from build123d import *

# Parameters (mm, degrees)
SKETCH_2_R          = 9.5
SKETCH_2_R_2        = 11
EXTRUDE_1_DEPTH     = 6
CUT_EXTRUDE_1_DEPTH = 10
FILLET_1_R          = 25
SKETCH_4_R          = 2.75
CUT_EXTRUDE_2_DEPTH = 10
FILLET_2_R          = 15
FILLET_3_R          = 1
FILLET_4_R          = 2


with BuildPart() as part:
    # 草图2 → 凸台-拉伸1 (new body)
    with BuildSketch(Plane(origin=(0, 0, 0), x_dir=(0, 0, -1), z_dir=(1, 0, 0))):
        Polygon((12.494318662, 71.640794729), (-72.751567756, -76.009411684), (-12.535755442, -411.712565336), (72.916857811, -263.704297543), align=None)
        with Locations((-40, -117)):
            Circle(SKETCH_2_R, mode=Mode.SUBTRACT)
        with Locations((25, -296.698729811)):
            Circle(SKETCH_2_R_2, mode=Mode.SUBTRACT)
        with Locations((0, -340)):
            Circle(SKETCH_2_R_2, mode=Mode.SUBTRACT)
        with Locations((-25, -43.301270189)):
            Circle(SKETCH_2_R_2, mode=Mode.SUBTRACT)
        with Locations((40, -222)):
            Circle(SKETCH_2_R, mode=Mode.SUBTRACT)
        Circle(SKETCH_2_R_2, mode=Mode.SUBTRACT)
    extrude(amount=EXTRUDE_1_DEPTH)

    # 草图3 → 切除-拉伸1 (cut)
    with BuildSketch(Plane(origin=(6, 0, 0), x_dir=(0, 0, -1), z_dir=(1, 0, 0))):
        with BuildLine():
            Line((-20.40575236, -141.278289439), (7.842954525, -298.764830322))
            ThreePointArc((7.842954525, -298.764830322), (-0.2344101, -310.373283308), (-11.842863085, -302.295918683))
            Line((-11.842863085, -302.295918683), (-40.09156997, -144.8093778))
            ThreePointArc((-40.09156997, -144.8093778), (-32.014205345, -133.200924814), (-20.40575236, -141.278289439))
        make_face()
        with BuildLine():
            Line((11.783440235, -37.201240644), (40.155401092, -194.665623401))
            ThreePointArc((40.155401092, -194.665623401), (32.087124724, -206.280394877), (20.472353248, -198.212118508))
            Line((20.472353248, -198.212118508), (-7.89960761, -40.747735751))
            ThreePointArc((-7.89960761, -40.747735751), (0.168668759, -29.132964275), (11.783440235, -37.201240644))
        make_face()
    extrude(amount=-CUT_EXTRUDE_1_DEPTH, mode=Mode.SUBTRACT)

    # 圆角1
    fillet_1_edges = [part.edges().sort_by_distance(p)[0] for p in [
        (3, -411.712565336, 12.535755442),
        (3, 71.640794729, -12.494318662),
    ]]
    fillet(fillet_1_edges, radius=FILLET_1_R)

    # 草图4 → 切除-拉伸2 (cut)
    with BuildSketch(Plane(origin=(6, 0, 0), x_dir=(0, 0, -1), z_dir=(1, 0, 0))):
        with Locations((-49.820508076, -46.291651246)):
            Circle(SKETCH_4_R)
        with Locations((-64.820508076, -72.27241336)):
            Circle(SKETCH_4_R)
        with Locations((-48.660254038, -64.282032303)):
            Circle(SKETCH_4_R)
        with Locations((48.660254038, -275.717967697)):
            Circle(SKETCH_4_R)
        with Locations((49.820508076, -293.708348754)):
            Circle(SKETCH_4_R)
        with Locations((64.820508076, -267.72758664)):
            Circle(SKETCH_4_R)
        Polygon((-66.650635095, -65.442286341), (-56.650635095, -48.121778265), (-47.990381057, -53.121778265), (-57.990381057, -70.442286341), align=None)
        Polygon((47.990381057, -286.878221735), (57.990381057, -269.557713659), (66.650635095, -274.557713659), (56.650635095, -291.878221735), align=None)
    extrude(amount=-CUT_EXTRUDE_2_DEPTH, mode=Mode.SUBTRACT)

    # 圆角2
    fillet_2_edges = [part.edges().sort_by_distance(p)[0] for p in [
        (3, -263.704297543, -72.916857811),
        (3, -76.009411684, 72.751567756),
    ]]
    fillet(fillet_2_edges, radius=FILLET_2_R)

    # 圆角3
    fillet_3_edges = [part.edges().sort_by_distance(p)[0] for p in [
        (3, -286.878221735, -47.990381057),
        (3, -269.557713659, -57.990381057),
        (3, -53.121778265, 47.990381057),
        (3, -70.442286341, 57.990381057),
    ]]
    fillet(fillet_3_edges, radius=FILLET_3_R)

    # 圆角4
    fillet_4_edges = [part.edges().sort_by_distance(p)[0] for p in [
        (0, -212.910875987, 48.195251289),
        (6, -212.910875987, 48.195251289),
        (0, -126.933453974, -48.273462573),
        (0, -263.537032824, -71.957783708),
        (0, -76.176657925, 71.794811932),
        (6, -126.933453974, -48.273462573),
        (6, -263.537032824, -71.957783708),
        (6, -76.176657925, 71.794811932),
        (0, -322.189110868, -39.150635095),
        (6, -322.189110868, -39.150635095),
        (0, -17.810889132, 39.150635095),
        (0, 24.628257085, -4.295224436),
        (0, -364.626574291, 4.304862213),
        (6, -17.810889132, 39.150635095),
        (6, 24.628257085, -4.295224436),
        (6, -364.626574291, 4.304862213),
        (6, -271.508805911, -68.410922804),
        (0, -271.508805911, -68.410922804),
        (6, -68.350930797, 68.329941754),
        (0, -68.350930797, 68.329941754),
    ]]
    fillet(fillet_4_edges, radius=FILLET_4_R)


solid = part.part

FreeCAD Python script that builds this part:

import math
import FreeCAD as App
import Part
import Sketcher
from FreeCAD import Vector
Q = App.Units.Quantity


def edges_at(feature, points):
    """Names of the edges that pass closest to the given points."""
    edges = feature.Shape.Edges
    near = lambda p: min(range(len(edges)), key=lambda i: edges[i].distToShape(Part.Vertex(*p))[0])
    return sorted({f"Edge{near(p) + 1}" for p in points})

doc = App.newDocument("Part")
body = doc.addObject("PartDesign::Body", "Body")

# Sketch on YZ plane
sketch1 = doc.addObject("Sketcher::SketchObject", "Sketch")
body.addObject(sketch1)
sketch1.AttachmentSupport = (doc.YZ_Plane, [""])
sketch1.MapMode = "FlatFace"
sketch1.addGeometry(Part.LineSegment(Vector(72, -12, 0), Vector(-76, 73, 0)), False)
sketch1.addGeometry(Part.LineSegment(Vector(-76, 73, 0), Vector(-412, 13, 0)), False)
sketch1.addGeometry(Part.LineSegment(Vector(-412, 13, 0), Vector(-264, -73, 0)), False)
sketch1.addGeometry(Part.LineSegment(Vector(-264, -73, 0), Vector(72, -12, 0)), False)
sketch1.addGeometry(Part.Circle(Vector(-340, 0, 0), Vector(0, 0, 1), 11), False)
sketch1.addGeometry(Part.Circle(Vector(-297, -25, 0), Vector(0, 0, 1), 11), False)
sketch1.addGeometry(Part.Circle(Vector(-222, -40, 0), Vector(0, 0, 1), 10), False)
sketch1.addGeometry(Part.Circle(Vector(-117, 40, 0), Vector(0, 0, 1), 10), False)
sketch1.addGeometry(Part.Circle(Vector(-43, 25, 0), Vector(0, 0, 1), 11), False)
sketch1.addGeometry(Part.Circle(Vector(0, 0, 0), Vector(0, 0, 1), 11), False)
sketch1.addConstraint(Sketcher.Constraint("Coincident", 0, 2, 1, 1))
sketch1.addConstraint(Sketcher.Constraint("Coincident", 1, 2, 2, 1))
sketch1.addConstraint(Sketcher.Constraint("Coincident", 2, 2, 3, 1))
sketch1.addConstraint(Sketcher.Constraint("Coincident", 3, 2, 0, 1))
sketch1.addConstraint(Sketcher.Constraint("Coincident", 9, 3, -1, 1))
sketch1.addConstraint(Sketcher.Constraint("Equal", 4, 5))
sketch1.addConstraint(Sketcher.Constraint("Equal", 6, 7))
sketch1.addConstraint(Sketcher.Constraint("Equal", 5, 8))
sketch1.addConstraint(Sketcher.Constraint("Equal", 8, 9))
sketch1.addConstraint(Sketcher.Constraint("PointOnObject", 4, 3, -1))
sketch1.addConstraint(Sketcher.Constraint("Parallel", 0, 2))
sketch1.addConstraint(Sketcher.Constraint("Diameter", 4, Q("22 mm")))
sketch1.addConstraint(Sketcher.Constraint("Diameter", 6, Q("19 mm")))
sketch1.addConstraint(Sketcher.Constraint("Angle", 0, Q("150 deg")))
sketch1.addConstraint(Sketcher.Constraint("DistanceX", 4, 3, -1, 1, Q("340 mm")))
sketch1.addConstraint(Sketcher.Constraint("DistanceY", 5, 3, -1, 1, Q("25 mm")))
sketch1.addConstraint(Sketcher.Constraint("DistanceX", 6, 3, -1, 1, Q("222 mm")))
sketch1.addConstraint(Sketcher.Constraint("DistanceY", 6, 3, -1, 1, Q("40 mm")))
sketch1.addConstraint(Sketcher.Constraint("DistanceX", 7, 3, -1, 1, Q("117 mm")))
sketch1.addConstraint(Sketcher.Constraint("DistanceY", -1, 1, 7, 3, Q("40 mm")))
sketch1.addConstraint(Sketcher.Constraint("DistanceY", -1, 1, 8, 3, Q("25 mm")))
sketch1.addConstraint(Sketcher.Constraint("Distance", 1, Q("341.06092 mm")))
sketch1.addConstraint(Sketcher.Constraint("DistanceX", 5, 3, -1, 1, Q("296.69873 mm")))
sketch1.addConstraint(Sketcher.Constraint("DistanceX", 8, 3, -1, 1, Q("43.30127 mm")))
sketch1.addConstraint(Sketcher.Constraint("DistanceX", 0, 2, -1, 1, Q("76.009412 mm")))
sketch1.addConstraint(Sketcher.Constraint("DistanceY", 3, 2, -1, 1, Q("12.494319 mm")))
sketch1.addConstraint(Sketcher.Constraint("Distance", 0, Q("170.491773 mm")))
sketch1.addConstraint(Sketcher.Constraint("Distance", 2, Q("170.905227 mm")))
sketch1.addConstraint(Sketcher.Constraint("DistanceX", 1, 2, -1, 1, Q("411.712565 mm")))
pad1 = doc.addObject("PartDesign::Pad", "Pad")
body.addObject(pad1)
pad1.Profile = sketch1
pad1.Length = 6

# Sketch on YZ plane
sketch2 = doc.addObject("Sketcher::SketchObject", "Sketch001")
body.addObject(sketch2)
sketch2.AttachmentSupport = (doc.YZ_Plane, [""])
sketch2.MapMode = "FlatFace"
sketch2.AttachmentOffset = App.Placement(Vector(0, 0, 6), App.Rotation())
sketch2.addGeometry(Part.LineSegment(Vector(-299, -8, 0), Vector(-141, 20, 0)), False)
sketch2.addGeometry(Part.ArcOfCircle(Part.Circle(Vector(-143, 30, 0), Vector(0, 0, 1), 10), math.radians(-80), math.radians(100)), False)
sketch2.addGeometry(Part.LineSegment(Vector(-145, 40, 0), Vector(-302, 12, 0)), False)
sketch2.addGeometry(Part.ArcOfCircle(Part.Circle(Vector(-301, 2, 0), Vector(0, 0, 1), 10), math.radians(100), math.radians(280)), False)
sketch2.addGeometry(Part.LineSegment(Vector(-195, -40, 0), Vector(-37, -12, 0)), False)
sketch2.addGeometry(Part.ArcOfCircle(Part.Circle(Vector(-39, -2, 0), Vector(0, 0, 1), 10), math.radians(-80), math.radians(100)), False)
sketch2.addGeometry(Part.LineSegment(Vector(-41, 8, 0), Vector(-198, -20, 0)), False)
sketch2.addGeometry(Part.ArcOfCircle(Part.Circle(Vector(-196, -30, 0), Vector(0, 0, 1), 10), math.radians(100), math.radians(280)), False)
sketch2.addConstraint(Sketcher.Constraint("Tangent", 0, 2, 1, 1))
sketch2.addConstraint(Sketcher.Constraint("Tangent", 1, 2, 2, 1))
sketch2.addConstraint(Sketcher.Constraint("Tangent", 2, 2, 3, 1))
sketch2.addConstraint(Sketcher.Constraint("Tangent", 3, 2, 0, 1))
sketch2.addConstraint(Sketcher.Constraint("Tangent", 4, 2, 5, 1))
sketch2.addConstraint(Sketcher.Constraint("Tangent", 5, 2, 6, 1))
sketch2.addConstraint(Sketcher.Constraint("Tangent", 6, 2, 7, 1))
sketch2.addConstraint(Sketcher.Constraint("Tangent", 7, 2, 4, 1))
sketch2.addConstraint(Sketcher.Constraint("Equal", 1, 3))
sketch2.addConstraint(Sketcher.Constraint("Equal", 3, 5))
sketch2.addConstraint(Sketcher.Constraint("Equal", 5, 7))
sketch2.addConstraint(Sketcher.Constraint("Equal", 2, 4))
sketch2.addConstraint(Sketcher.Constraint("Radius", 1, Q("10 mm")))
sketch2.addConstraint(Sketcher.Constraint("Distance", 0, Q("160 mm")))
sketch2.addConstraint(Sketcher.Constraint("DistanceY", 7, 2, -1, 1, Q("40.155401 mm")))
sketch2.addConstraint(Sketcher.Constraint("DistanceX", 0, 2, 5, 3, Q("102.303801 mm")))
sketch2.addConstraint(Sketcher.Constraint("DistanceY", 3, 3, 0, 2, Q("18.405798 mm")))
sketch2.addConstraint(Sketcher.Constraint("DistanceY", 4, 2, 1, 3, Q("42.032101 mm")))
sketch2.addConstraint(Sketcher.Constraint("DistanceY", 6, 2, 3, 2, Q("12.629399 mm")))
sketch2.addConstraint(Sketcher.Constraint("DistanceX", 5, 3, -1, 1, Q("38.974488 mm")))
pocket1 = doc.addObject("PartDesign::Pocket", "Pocket")
body.addObject(pocket1)
pocket1.Profile = sketch2
pocket1.Length = 10
doc.recompute()

fillet = doc.addObject("PartDesign::Fillet", "Fillet")
body.addObject(fillet)
fillet.Base = (pocket1, edges_at(pocket1, [(3, -411.713, 12.536), (3, 71.641, -12.494)]))
fillet.Radius = 25

# Sketch on YZ plane
sketch3 = doc.addObject("Sketcher::SketchObject", "Sketch002")
body.addObject(sketch3)
sketch3.AttachmentSupport = (doc.YZ_Plane, [""])
sketch3.MapMode = "FlatFace"
sketch3.AttachmentOffset = App.Placement(Vector(0, 0, 6), App.Rotation())
sketch3.addGeometry(Part.Circle(Vector(-46.3, 49.8, 0), Vector(0, 0, 1), 2.8), False)
sketch3.addGeometry(Part.Circle(Vector(-72.3, 64.8, 0), Vector(0, 0, 1), 2.8), False)
sketch3.addGeometry(Part.Circle(Vector(-64.3, 48.7, 0), Vector(0, 0, 1), 2.8), False)
sketch3.addGeometry(Part.Circle(Vector(-275.7, -48.7, 0), Vector(0, 0, 1), 2.8), False)
sketch3.addGeometry(Part.Circle(Vector(-293.7, -49.8, 0), Vector(0, 0, 1), 2.8), False)
sketch3.addGeometry(Part.Circle(Vector(-267.7, -64.8, 0), Vector(0, 0, 1), 2.8), False)
sketch3.addGeometry(Part.LineSegment(Vector(-48.1, 56.7, 0), Vector(-65.4, 66.7, 0)), False)
sketch3.addGeometry(Part.LineSegment(Vector(-65.4, 66.7, 0), Vector(-70.4, 58, 0)), False)
sketch3.addGeometry(Part.LineSegment(Vector(-70.4, 58, 0), Vector(-53.1, 48, 0)), False)
sketch3.addGeometry(Part.LineSegment(Vector(-53.1, 48, 0), Vector(-48.1, 56.7, 0)), False)
sketch3.addGeometry(Part.LineSegment(Vector(-269.6, -58, 0), Vector(-286.9, -48, 0)), False)
sketch3.addGeometry(Part.LineSegment(Vector(-286.9, -48, 0), Vector(-291.9, -56.7, 0)), False)
sketch3.addGeometry(Part.LineSegment(Vector(-291.9, -56.7, 0), Vector(-274.6, -66.7, 0)), False)
sketch3.addGeometry(Part.LineSegment(Vector(-274.6, -66.7, 0), Vector(-269.6, -58, 0)), False)
sketch3.addConstraint(Sketcher.Constraint("Coincident", 6, 2, 7, 1))
sketch3.addConstraint(Sketcher.Constraint("Coincident", 7, 2, 8, 1))
sketch3.addConstraint(Sketcher.Constraint("Coincident", 8, 2, 9, 1))
sketch3.addConstraint(Sketcher.Constraint("Coincident", 9, 2, 6, 1))
sketch3.addConstraint(Sketcher.Constraint("Coincident", 10, 2, 11, 1))
sketch3.addConstraint(Sketcher.Constraint("Coincident", 11, 2, 12, 1))
sketch3.addConstraint(Sketcher.Constraint("Coincident", 12, 2, 13, 1))
sketch3.addConstraint(Sketcher.Constraint("Coincident", 13, 2, 10, 1))
sketch3.addConstraint(Sketcher.Constraint("Equal", 0, 1))
sketch3.addConstraint(Sketcher.Constraint("Equal", 1, 2))
sketch3.addConstraint(Sketcher.Constraint("Equal", 2, 3))
sketch3.addConstraint(Sketcher.Constraint("Equal", 3, 4))
sketch3.addConstraint(Sketcher.Constraint("Equal", 4, 5))
sketch3.addConstraint(Sketcher.Constraint("Perpendicular", 6, 7))
sketch3.addConstraint(Sketcher.Constraint("Perpendicular", 7, 8))
sketch3.addConstraint(Sketcher.Constraint("Perpendicular", 8, 9))
sketch3.addConstraint(Sketcher.Constraint("Perpendicular", 9, 10))
sketch3.addConstraint(Sketcher.Constraint("Perpendicular", 10, 11))
sketch3.addConstraint(Sketcher.Constraint("Perpendicular", 11, 12))
sketch3.addConstraint(Sketcher.Constraint("Perpendicular", 12, 13))
sketch3.addConstraint(Sketcher.Constraint("Equal", 8, 10))
sketch3.addConstraint(Sketcher.Constraint("Equal", 9, 11))
sketch3.addConstraint(Sketcher.Constraint("Diameter", 0, Q("5.5 mm")))
sketch3.addConstraint(Sketcher.Constraint("Angle", 6, Q("150 deg")))
sketch3.addConstraint(Sketcher.Constraint("Distance", 6, Q("20 mm")))
sketch3.addConstraint(Sketcher.Constraint("Distance", 7, Q("10 mm")))
sketch3.addConstraint(Sketcher.Constraint("DistanceY", 0, 3, 1, 3, Q("15 mm")))
sketch3.addConstraint(Sketcher.Constraint("DistanceY", 5, 3, 4, 3, Q("15 mm")))
sketch3.addConstraint(Sketcher.Constraint("DistanceX", 5, 3, 6, 2, Q("202.2853 mm")))
sketch3.addConstraint(Sketcher.Constraint("DistanceX", 0, 3, -1, 1, Q("46.291651 mm")))
sketch3.addConstraint(Sketcher.Constraint("DistanceY", -1, 1, 0, 3, Q("49.820508 mm")))
sketch3.addConstraint(Sketcher.Constraint("DistanceX", 4, 3, -1, 1, Q("293.708349 mm")))
sketch3.addConstraint(Sketcher.Constraint("DistanceY", 4, 3, -1, 1, Q("49.820508 mm")))
sketch3.addConstraint(Sketcher.Constraint("DistanceY", -1, 1, 7, 2, Q("57.990381 mm")))
sketch3.addConstraint(Sketcher.Constraint("DistanceX", 8, 2, -1, 1, Q("53.121778 mm")))
sketch3.addConstraint(Sketcher.Constraint("DistanceX", 10, 2, -1, 1, Q("286.878222 mm")))
sketch3.addConstraint(Sketcher.Constraint("DistanceY", 10, 2, -1, 1, Q("47.990381 mm")))
sketch3.addConstraint(Sketcher.Constraint("DistanceX", 2, 3, 0, 3, Q("17.990381 mm")))
sketch3.addConstraint(Sketcher.Constraint("DistanceX", 1, 3, 2, 3, Q("7.990381 mm")))
sketch3.addConstraint(Sketcher.Constraint("DistanceY", 3, 3, 2, 3, Q("97.320508 mm")))
sketch3.addConstraint(Sketcher.Constraint("DistanceX", 4, 3, 3, 3, Q("17.990381 mm")))
sketch3.addConstraint(Sketcher.Constraint("DistanceY", 2, 3, 6, 2, Q("17.990381 mm")))
pocket2 = doc.addObject("PartDesign::Pocket", "Pocket001")
body.addObject(pocket2)
pocket2.Profile = sketch3
pocket2.Length = 10
doc.recompute()

fillet2 = doc.addObject("PartDesign::Fillet", "Fillet001")
body.addObject(fillet2)
fillet2.Base = (pocket2, edges_at(pocket2, [(3, -263.704, -72.917), (3, -76.009, 72.752)]))
fillet2.Radius = 15
doc.recompute()

fillet3 = doc.addObject("PartDesign::Fillet", "Fillet002")
body.addObject(fillet3)
fillet3.Base = (fillet2, edges_at(fillet2, [
    (3, -286.878, -47.99),
    (3, -269.558, -57.99),
    (3, -53.122, 47.99),
    (3, -70.442, 57.99),
]))
fillet3.Radius = 1
doc.recompute()

fillet4 = doc.addObject("PartDesign::Fillet", "Fillet003")
body.addObject(fillet4)
fillet4.Base = (fillet3, edges_at(fillet3, [
    (0, -212.911, 48.195),
    (6, -212.911, 48.195),
    (0, -126.933, -48.273),
    (0, -263.537, -71.958),
    (0, -76.177, 71.795),
    (6, -126.933, -48.273),
    (6, -263.537, -71.958),
    (6, -76.177, 71.795),
    (0, -322.189, -39.151),
    (6, -322.189, -39.151),
    (0, -17.811, 39.151),
    (0, 24.628, -4.295),
    (0, -364.627, 4.305),
    (6, -17.811, 39.151),
    (6, 24.628, -4.295),
    (6, -364.627, 4.305),
    (6, -271.509, -68.411),
    (0, -271.509, -68.411),
    (6, -68.351, 68.33),
    (0, -68.351, 68.33),
]))
fillet4.Radius = 2

doc.recompute()
